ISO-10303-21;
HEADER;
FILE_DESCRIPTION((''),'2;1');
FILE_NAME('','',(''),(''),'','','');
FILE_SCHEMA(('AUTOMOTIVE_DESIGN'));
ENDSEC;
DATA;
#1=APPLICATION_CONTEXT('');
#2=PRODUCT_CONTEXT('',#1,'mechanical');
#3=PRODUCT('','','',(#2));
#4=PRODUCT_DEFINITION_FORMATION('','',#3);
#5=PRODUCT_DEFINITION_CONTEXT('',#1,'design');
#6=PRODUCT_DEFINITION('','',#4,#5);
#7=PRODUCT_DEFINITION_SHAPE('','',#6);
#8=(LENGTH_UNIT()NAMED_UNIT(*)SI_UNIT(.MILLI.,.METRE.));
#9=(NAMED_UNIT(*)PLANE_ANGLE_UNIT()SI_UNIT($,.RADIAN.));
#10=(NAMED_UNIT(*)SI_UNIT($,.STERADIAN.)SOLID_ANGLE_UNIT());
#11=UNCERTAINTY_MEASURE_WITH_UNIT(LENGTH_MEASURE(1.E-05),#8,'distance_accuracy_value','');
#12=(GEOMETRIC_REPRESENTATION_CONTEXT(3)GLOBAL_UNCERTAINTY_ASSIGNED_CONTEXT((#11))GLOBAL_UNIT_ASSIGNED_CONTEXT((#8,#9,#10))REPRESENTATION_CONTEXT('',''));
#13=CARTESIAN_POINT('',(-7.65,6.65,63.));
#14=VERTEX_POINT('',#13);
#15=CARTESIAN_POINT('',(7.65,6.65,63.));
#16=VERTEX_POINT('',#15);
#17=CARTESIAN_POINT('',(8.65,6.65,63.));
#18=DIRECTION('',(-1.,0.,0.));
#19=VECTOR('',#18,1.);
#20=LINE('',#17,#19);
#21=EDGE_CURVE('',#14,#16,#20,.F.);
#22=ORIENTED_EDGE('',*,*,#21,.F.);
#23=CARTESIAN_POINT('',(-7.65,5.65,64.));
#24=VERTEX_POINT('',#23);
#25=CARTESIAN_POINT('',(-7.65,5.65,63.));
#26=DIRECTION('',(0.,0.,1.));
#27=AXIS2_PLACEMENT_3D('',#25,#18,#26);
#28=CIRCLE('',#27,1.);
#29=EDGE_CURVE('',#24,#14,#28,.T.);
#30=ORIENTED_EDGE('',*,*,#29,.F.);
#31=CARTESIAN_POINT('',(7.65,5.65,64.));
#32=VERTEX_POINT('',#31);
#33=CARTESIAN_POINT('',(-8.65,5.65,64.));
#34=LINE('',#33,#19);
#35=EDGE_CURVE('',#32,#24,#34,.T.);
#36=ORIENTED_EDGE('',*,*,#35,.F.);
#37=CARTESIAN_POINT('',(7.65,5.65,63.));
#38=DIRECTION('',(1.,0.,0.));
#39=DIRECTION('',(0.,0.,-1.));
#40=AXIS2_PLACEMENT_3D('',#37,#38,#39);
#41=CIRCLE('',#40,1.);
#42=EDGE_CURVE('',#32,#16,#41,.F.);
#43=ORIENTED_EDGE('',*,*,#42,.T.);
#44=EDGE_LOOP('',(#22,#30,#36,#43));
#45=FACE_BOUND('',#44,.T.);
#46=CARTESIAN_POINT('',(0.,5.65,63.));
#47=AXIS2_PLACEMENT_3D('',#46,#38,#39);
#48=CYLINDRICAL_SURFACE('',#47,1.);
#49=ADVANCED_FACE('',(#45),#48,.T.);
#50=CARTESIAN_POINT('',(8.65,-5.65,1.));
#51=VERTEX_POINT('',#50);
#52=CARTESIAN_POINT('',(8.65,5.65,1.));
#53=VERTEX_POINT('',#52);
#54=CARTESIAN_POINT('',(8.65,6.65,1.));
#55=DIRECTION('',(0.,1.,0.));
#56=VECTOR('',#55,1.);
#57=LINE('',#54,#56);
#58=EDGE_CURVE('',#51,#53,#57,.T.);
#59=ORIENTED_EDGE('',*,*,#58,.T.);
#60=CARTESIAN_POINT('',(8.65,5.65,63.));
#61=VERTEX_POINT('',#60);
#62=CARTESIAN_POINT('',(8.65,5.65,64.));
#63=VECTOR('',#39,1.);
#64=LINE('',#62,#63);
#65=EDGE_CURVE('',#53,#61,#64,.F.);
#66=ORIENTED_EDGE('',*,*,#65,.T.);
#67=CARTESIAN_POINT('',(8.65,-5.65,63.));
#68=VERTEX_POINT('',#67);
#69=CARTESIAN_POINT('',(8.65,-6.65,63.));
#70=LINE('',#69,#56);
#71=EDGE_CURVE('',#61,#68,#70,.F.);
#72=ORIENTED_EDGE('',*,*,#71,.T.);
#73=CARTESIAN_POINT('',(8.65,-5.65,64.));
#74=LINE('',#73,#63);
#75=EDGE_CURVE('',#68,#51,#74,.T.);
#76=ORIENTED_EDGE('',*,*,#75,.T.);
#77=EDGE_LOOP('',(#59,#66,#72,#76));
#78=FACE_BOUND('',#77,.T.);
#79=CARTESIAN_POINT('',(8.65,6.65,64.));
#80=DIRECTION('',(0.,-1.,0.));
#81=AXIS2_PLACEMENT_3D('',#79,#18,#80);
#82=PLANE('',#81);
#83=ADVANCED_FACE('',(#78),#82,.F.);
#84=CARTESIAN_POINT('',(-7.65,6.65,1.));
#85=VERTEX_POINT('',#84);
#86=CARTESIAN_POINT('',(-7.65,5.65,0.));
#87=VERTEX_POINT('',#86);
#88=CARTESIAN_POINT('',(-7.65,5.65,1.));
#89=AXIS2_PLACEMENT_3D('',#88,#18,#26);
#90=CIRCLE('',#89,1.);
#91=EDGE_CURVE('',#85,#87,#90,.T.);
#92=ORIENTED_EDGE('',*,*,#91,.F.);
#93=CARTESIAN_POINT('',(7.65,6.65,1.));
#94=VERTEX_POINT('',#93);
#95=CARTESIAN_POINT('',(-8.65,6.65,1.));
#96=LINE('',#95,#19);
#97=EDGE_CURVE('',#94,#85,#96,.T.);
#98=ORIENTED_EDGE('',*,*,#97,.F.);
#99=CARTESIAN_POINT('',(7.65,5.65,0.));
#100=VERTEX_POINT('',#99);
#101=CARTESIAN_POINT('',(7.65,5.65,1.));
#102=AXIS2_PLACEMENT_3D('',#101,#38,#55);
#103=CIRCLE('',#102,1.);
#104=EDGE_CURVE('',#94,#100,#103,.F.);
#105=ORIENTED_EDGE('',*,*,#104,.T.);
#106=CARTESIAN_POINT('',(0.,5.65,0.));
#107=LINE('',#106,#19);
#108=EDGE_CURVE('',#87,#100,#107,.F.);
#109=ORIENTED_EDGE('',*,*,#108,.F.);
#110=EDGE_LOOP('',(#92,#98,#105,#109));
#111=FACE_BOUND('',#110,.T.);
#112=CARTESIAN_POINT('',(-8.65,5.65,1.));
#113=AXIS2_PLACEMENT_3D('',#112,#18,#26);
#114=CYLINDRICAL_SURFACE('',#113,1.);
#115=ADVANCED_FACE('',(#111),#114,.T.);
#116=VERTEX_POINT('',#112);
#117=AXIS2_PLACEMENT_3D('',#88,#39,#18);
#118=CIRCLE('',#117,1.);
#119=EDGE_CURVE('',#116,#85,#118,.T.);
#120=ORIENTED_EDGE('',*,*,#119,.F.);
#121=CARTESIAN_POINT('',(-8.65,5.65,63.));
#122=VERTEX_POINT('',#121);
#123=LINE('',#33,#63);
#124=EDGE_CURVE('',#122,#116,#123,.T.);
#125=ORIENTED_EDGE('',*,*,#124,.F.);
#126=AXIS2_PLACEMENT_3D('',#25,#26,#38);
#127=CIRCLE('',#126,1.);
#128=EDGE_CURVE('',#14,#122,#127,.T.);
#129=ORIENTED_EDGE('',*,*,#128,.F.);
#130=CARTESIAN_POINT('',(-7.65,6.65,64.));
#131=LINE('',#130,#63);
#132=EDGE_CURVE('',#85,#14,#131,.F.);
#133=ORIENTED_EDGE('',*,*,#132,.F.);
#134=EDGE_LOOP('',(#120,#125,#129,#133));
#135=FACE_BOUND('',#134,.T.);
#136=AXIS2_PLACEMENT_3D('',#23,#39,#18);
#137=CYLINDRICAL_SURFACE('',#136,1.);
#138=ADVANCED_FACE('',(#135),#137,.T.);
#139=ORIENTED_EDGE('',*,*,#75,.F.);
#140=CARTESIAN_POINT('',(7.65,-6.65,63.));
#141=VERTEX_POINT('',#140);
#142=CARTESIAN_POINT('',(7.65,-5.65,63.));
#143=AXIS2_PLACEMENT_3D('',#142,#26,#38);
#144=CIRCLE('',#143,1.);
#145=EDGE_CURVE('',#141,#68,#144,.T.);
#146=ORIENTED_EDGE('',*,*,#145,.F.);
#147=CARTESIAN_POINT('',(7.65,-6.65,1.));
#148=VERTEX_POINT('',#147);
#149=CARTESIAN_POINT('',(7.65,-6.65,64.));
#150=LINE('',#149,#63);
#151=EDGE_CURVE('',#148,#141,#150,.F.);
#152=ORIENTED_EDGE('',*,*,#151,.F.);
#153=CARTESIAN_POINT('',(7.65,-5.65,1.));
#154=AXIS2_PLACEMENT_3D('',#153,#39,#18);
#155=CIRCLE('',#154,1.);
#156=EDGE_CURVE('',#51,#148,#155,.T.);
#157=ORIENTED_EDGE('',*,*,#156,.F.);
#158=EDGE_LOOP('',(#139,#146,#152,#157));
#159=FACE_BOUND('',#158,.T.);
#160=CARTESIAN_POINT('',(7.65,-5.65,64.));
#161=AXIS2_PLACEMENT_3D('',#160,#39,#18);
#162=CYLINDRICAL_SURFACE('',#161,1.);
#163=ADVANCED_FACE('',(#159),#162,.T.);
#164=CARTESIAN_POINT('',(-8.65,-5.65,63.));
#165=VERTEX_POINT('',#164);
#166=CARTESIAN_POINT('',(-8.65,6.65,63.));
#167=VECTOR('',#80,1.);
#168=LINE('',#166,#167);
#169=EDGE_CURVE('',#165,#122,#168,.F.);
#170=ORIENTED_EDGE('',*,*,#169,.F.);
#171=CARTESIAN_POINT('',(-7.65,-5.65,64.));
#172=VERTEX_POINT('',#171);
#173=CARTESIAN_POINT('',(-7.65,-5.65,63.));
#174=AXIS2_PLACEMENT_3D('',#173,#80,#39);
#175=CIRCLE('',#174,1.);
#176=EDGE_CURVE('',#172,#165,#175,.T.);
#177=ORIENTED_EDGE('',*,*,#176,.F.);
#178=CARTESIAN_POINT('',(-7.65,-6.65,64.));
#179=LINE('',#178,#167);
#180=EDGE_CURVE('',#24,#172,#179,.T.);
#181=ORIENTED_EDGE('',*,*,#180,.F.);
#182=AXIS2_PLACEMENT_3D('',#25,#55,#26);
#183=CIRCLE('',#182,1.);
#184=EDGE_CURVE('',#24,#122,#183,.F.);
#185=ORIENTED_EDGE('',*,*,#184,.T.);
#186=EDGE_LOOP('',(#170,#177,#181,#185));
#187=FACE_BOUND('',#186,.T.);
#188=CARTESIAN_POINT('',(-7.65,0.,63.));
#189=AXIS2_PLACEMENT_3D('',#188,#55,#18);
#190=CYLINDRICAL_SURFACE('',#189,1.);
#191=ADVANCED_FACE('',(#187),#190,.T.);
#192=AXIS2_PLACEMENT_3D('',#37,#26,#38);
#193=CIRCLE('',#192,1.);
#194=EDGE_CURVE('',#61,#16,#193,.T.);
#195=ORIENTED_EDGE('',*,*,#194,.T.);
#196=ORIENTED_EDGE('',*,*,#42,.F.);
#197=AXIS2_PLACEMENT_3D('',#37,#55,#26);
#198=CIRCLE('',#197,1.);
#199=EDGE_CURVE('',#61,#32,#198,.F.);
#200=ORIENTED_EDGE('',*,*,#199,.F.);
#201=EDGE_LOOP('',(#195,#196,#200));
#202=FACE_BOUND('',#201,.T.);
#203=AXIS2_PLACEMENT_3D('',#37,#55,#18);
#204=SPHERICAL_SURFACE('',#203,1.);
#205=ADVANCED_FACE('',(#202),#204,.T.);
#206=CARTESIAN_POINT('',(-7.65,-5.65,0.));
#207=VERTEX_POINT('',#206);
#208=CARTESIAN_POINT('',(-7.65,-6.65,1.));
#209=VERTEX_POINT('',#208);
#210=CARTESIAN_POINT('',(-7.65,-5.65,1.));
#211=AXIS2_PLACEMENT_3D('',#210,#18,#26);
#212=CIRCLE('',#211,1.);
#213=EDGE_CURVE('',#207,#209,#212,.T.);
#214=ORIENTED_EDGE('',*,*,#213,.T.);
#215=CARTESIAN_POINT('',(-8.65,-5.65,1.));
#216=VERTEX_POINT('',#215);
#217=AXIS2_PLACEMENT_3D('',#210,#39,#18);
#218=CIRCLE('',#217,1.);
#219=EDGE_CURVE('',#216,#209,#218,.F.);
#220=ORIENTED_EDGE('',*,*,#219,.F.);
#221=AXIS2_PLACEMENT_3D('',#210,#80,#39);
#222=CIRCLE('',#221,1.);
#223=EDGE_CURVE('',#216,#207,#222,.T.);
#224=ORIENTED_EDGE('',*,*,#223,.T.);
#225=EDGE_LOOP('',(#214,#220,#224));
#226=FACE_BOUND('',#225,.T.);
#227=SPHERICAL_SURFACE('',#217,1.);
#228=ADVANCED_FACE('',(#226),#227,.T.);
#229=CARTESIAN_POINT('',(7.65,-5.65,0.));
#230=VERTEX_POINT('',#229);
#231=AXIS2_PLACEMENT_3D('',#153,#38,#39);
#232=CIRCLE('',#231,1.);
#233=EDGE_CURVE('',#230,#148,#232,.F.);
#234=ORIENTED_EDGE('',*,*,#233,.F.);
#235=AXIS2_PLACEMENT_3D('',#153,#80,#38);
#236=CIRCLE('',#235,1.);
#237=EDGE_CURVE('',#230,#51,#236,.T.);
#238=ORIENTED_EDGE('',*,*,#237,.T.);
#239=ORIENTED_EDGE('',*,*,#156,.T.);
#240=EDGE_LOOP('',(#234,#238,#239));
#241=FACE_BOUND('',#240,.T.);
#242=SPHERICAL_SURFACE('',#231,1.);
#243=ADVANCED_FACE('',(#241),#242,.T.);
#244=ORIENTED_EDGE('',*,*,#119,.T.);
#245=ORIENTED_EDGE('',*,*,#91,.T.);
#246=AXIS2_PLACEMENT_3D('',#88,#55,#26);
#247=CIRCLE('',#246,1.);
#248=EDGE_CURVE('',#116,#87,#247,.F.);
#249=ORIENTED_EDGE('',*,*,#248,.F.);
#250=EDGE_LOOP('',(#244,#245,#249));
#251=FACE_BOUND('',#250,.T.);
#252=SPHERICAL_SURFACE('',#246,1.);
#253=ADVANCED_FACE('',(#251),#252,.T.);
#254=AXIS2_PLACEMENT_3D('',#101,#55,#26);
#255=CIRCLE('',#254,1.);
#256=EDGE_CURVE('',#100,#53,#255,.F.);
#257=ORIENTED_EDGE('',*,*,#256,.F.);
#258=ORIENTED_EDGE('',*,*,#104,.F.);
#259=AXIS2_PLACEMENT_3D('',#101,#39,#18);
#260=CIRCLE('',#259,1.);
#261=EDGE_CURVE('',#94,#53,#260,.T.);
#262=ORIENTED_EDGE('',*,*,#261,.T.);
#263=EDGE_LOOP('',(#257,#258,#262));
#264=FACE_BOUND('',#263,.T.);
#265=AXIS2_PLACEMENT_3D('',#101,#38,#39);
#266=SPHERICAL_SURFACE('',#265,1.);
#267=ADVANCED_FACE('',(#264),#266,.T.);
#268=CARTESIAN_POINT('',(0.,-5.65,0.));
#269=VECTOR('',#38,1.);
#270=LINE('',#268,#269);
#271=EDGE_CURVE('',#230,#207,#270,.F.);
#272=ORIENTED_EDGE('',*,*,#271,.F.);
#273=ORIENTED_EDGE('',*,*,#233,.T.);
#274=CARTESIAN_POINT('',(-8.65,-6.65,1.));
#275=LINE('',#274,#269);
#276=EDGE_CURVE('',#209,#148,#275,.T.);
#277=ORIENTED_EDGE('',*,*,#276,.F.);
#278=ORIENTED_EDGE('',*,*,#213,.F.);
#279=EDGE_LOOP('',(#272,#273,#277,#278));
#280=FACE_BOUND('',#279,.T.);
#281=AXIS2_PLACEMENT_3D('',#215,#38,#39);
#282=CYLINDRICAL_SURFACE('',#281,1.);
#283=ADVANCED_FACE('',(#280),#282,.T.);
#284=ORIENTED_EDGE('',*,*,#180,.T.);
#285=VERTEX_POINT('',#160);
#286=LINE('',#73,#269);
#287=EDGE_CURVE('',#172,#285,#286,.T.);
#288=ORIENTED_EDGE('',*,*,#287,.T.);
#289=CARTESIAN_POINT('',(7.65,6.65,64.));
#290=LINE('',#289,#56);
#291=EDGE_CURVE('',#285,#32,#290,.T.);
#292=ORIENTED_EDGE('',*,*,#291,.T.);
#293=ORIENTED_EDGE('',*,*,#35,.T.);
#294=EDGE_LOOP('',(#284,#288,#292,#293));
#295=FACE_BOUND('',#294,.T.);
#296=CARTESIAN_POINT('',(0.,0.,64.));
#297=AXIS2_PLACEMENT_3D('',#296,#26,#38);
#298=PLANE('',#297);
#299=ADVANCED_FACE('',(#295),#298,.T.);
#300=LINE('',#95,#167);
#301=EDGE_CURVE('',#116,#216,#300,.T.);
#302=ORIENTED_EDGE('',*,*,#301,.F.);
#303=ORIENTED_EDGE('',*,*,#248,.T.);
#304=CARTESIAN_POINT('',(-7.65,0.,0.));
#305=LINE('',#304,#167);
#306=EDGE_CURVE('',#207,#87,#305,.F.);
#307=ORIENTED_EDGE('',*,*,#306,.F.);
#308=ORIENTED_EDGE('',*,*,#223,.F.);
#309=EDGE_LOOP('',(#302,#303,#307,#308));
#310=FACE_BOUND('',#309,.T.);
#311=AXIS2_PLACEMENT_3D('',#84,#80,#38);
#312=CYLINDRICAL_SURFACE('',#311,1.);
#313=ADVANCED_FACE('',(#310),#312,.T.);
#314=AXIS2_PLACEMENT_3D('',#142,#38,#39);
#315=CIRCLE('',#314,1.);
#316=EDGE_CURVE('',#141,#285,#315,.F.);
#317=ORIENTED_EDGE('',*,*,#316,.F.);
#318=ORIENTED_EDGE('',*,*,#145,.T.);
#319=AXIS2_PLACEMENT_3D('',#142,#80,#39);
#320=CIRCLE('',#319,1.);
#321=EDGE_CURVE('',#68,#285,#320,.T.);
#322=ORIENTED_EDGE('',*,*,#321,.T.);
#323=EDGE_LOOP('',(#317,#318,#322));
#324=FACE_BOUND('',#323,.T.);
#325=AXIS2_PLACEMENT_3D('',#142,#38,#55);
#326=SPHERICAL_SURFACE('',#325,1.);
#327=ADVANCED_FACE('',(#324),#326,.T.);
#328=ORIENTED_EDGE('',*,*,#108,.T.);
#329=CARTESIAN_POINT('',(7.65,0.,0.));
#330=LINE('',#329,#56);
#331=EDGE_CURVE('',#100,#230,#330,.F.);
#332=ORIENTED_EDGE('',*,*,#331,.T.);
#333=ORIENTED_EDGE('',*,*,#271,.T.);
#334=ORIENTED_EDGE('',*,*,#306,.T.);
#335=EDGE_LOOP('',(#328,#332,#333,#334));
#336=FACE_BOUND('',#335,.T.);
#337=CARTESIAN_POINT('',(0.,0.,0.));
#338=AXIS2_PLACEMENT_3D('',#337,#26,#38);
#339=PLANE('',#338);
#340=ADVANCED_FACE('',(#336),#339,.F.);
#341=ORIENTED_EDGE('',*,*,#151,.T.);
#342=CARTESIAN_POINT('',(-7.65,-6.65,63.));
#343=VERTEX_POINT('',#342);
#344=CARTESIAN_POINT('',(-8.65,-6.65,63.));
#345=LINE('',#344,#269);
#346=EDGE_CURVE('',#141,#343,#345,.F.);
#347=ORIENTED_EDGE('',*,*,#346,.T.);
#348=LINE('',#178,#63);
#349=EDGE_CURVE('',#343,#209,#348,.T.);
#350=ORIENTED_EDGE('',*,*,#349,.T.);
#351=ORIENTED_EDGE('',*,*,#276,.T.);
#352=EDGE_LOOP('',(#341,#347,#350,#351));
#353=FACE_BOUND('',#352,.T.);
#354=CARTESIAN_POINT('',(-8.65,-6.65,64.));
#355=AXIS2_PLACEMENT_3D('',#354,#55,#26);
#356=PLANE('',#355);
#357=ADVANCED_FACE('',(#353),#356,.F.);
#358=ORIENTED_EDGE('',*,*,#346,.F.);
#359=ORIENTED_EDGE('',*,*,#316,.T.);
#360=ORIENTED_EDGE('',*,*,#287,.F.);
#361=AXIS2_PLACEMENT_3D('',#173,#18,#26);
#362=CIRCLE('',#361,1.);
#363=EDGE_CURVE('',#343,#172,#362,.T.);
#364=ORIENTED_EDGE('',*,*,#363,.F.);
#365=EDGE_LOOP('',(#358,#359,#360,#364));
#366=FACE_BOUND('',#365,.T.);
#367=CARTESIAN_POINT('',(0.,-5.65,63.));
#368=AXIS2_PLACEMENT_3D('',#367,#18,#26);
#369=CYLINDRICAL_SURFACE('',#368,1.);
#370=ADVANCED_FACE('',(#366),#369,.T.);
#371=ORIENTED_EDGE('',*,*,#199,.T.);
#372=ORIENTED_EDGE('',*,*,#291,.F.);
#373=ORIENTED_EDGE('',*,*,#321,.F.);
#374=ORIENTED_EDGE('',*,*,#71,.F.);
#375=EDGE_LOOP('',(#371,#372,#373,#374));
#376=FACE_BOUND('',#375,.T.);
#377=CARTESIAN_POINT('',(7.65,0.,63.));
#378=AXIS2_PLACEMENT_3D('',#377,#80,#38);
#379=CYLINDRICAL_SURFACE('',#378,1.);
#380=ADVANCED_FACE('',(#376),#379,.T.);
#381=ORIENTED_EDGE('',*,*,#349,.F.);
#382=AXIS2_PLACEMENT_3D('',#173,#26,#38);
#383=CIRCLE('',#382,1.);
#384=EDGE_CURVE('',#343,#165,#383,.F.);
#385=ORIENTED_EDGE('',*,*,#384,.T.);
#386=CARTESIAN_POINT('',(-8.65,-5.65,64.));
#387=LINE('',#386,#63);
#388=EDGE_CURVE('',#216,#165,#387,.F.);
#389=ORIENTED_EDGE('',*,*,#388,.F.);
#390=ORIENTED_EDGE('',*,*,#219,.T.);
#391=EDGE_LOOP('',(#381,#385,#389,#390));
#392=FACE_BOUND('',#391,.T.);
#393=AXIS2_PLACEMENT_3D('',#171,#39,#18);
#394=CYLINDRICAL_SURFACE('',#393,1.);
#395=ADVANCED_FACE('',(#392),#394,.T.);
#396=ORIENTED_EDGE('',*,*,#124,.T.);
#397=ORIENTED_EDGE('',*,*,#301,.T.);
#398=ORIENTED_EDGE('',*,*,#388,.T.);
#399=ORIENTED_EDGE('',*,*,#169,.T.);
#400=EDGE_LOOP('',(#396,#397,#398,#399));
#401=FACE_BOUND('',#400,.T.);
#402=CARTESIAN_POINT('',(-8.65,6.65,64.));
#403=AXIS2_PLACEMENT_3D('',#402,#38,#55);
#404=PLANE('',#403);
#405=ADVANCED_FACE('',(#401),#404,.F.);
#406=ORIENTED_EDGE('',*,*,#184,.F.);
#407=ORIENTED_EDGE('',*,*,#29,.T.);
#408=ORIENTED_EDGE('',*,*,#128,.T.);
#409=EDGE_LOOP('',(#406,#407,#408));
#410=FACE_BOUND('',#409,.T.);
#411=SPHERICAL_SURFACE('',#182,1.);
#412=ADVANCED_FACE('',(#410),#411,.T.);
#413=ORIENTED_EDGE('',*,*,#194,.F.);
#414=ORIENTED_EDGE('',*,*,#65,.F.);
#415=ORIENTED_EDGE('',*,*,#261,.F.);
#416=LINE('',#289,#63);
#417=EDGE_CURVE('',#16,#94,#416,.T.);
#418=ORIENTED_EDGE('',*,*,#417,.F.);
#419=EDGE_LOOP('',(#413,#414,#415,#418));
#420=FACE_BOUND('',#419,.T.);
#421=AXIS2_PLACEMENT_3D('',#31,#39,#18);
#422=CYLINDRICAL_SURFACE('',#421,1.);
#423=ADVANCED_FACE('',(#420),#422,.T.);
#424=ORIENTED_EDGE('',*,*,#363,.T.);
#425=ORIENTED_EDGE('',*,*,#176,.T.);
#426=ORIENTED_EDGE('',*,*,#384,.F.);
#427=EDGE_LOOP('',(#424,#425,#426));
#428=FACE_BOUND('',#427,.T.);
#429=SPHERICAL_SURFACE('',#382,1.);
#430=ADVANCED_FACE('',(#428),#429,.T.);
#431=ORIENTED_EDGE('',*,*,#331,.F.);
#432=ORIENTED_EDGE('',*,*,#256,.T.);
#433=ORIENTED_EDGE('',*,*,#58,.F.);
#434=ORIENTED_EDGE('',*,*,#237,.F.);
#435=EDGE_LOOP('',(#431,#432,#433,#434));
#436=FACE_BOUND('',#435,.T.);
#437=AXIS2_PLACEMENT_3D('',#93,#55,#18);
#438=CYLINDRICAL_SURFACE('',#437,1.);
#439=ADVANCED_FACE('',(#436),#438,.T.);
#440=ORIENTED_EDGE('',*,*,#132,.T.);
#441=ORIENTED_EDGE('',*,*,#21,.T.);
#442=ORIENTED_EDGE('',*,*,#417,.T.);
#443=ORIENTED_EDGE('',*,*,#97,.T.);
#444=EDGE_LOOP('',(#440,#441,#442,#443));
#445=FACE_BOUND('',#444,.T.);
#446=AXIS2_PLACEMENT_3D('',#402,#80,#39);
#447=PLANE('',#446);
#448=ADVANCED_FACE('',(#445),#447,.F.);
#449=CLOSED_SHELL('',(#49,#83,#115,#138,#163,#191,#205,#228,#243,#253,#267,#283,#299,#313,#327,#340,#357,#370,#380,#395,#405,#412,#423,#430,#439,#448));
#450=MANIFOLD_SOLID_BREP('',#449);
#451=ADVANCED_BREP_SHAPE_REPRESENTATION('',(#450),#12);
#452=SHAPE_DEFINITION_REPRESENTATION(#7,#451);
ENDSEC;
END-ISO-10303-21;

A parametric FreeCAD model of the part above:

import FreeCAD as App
import Part
import Sketcher

doc = App.newDocument("Part")
params = doc.addObject("Spreadsheet::Sheet", "Params")
for row, (alias, value) in enumerate([
    ("sketch1_width", "17.3 mm"),
    ("sketch1_height", "13.3 mm"),
    ("pad1_length", "64 mm"),
    ("fillet_radius", "1 mm"),
], start=1):
    params.set(f"A{row}", alias)
    params.set(f"B{row}", "=" + value)
    params.setAlias(f"B{row}", alias)

body = doc.addObject("PartDesign::Body", "Body")

sketch1 = doc.addObject("Sketcher::SketchObject", "Sketch")
body.addObject(sketch1)
sketch1.AttachmentSupport = (doc.XY_Plane, [""])
sketch1.MapMode = "FlatFace"
sketch1.addGeometry([
    Part.LineSegment(App.Vector(-8.65, 6.65, 0), App.Vector(-8.65, -6.65, 0)),
    Part.LineSegment(App.Vector(-8.65, -6.65, 0), App.Vector(8.65, -6.65, 0)),
    Part.LineSegment(App.Vector(8.65, -6.65, 0), App.Vector(8.65, 6.65, 0)),
    Part.LineSegment(App.Vector(8.65, 6.65, 0), App.Vector(-8.65, 6.65, 0)),
], False)
sketch1.addConstraint([
    Sketcher.Constraint("Coincident", 0, 2, 1, 1),
    Sketcher.Constraint("Coincident", 1, 2, 2, 1),
    Sketcher.Constraint("Coincident", 2, 2, 3, 1),
    Sketcher.Constraint("Coincident", 3, 2, 0, 1),
    Sketcher.Constraint("Vertical", 0),
    Sketcher.Constraint("Horizontal", 1),
    Sketcher.Constraint("Vertical", 2),
    Sketcher.Constraint("Horizontal", 3),
    Sketcher.Constraint("Symmetric", 0, 2, 2, 2, -1, 1),
    Sketcher.Constraint("DistanceX", 1, 1, 1, 2, 17.3),
    Sketcher.Constraint("DistanceY", 0, 2, 0, 1, 13.3),
])
sketch1.setExpression("Constraints[9]", "Params.sketch1_width")
sketch1.setExpression("Constraints[10]", "Params.sketch1_height")
pad1 = doc.addObject("PartDesign::Pad", "Pad")
body.addObject(pad1)
pad1.Profile = sketch1
pad1.setExpression("Length", "Params.pad1_length")
doc.recompute()

fillet = doc.addObject("PartDesign::Fillet", "Fillet")
body.addObject(fillet)
fillet.Base = (pad1, ["Edge1"])
fillet.UseAllEdges = True
fillet.setExpression("Radius", "Params.fillet_radius")

doc.recompute()
